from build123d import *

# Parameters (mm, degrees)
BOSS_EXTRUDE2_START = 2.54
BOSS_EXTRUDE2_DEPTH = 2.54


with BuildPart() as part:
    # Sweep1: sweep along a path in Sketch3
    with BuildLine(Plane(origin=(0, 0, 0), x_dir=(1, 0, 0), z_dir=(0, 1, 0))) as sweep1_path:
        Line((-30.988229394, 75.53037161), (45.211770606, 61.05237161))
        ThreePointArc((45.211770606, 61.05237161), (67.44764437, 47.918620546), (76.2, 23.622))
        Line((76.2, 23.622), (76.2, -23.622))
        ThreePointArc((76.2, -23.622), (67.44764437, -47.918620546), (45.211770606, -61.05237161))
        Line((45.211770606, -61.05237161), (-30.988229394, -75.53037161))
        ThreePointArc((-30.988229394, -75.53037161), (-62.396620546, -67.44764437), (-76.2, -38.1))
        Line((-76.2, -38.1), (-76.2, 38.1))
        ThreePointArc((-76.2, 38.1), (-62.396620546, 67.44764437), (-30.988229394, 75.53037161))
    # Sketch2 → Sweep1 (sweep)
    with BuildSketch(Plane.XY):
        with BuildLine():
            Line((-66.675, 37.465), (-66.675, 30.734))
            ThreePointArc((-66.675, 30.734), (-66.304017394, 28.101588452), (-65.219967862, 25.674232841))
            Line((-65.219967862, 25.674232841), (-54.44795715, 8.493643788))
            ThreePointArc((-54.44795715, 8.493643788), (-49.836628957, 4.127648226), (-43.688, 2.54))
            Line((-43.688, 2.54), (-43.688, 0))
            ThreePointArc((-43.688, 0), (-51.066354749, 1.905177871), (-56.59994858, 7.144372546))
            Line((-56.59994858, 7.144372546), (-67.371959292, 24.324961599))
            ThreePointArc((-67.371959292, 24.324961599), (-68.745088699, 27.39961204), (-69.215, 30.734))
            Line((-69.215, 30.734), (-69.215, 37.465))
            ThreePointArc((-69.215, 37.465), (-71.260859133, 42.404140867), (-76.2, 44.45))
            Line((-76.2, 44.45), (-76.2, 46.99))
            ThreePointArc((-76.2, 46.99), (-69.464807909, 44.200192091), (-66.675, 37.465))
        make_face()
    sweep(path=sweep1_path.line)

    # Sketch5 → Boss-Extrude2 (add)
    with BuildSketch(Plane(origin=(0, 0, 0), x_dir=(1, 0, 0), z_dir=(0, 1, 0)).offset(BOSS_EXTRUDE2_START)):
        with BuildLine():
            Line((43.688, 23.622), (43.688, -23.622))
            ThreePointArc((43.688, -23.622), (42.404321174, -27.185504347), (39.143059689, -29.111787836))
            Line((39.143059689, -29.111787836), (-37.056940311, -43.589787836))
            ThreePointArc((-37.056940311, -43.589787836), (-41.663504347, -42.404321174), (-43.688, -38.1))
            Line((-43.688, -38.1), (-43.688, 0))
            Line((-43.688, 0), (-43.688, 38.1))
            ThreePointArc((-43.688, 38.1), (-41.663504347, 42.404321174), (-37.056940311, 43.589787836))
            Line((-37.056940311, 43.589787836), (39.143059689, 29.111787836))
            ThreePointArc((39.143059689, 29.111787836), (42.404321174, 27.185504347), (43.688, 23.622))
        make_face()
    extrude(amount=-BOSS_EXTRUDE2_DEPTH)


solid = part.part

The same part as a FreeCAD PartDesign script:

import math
import FreeCAD as App
import Part
import Sketcher
Q = App.Units.Quantity

doc = App.newDocument("Part")
body = doc.addObject("PartDesign::Body", "Body")

# Sketch on XY plane
sketch1 = body.newObject("Sketcher::SketchObject", "Sketch")
sketch1.AttachmentSupport = (doc.getObject("XY_Plane"), [""])
sketch1.MapMode = "FlatFace"
sketch1.addGeometry(Part.LineSegment(App.Vector(-66.7, 30.7, 0), App.Vector(-66.7, 37.5, 0)), False)
sketch1.addGeometry(Part.ArcOfCircle(Part.Circle(App.Vector(-76.2, 37.5, 0), App.Vector(0, 0, 1), 9.5), math.radians(0), math.radians(90)), False)
sketch1.addGeometry(Part.LineSegment(App.Vector(-76.2, 47, 0), App.Vector(-76.2, 44.5, 0)), False)
sketch1.addGeometry(Part.ArcOfCircle(Part.Circle(App.Vector(-76.2, 37.5, 0), App.Vector(0, 0, 1), 7), math.radians(0), math.radians(90)), False)
sketch1.addGeometry(Part.LineSegment(App.Vector(-69.2, 37.5, 0), App.Vector(-69.2, 30.7, 0)), False)
sketch1.addGeometry(Part.ArcOfCircle(Part.Circle(App.Vector(-57.2, 30.7, 0), App.Vector(0, 0, 1), 12.1), math.radians(180), math.radians(212)), False)
sketch1.addGeometry(Part.LineSegment(App.Vector(-67.4, 24.3, 0), App.Vector(-56.6, 7.1, 0)), False)
sketch1.addGeometry(Part.ArcOfCircle(Part.Circle(App.Vector(-43.7, 15.2, 0), App.Vector(0, 0, 1), 15.2), math.radians(-148), math.radians(-90)), False)
sketch1.addGeometry(Part.LineSegment(App.Vector(-43.7, 0, 0), App.Vector(-43.7, 2.5, 0)), False)
sketch1.addGeometry(Part.ArcOfCircle(Part.Circle(App.Vector(-43.7, 15.2, 0), App.Vector(0, 0, 1), 12.7), math.radians(-148), math.radians(-90)), False)
sketch1.addGeometry(Part.LineSegment(App.Vector(-54.4, 8.5, 0), App.Vector(-65.2, 25.7, 0)), False)
sketch1.addGeometry(Part.ArcOfCircle(Part.Circle(App.Vector(-57.2, 30.7, 0), App.Vector(0, 0, 1), 9.5), math.radians(180), math.radians(212)), False)
sketch1.addConstraint(Sketcher.Constraint("Tangent", 0, 2, 1, 1))
sketch1.addConstraint(Sketcher.Constraint("Coincident", 1, 2, 2, 1))
sketch1.addConstraint(Sketcher.Constraint("Coincident", 2, 2, 3, 2))
sketch1.addConstraint(Sketcher.Constraint("Tangent", 3, 1, 4, 1))
sketch1.addConstraint(Sketcher.Constraint("Tangent", 4, 2, 5, 1))
sketch1.addConstraint(Sketcher.Constraint("Tangent", 5, 2, 6, 1))
sketch1.addConstraint(Sketcher.Constraint("Tangent", 6, 2, 7, 1))
sketch1.addConstraint(Sketcher.Constraint("Coincident", 7, 2, 8, 1))
sketch1.addConstraint(Sketcher.Constraint("Coincident", 8, 2, 9, 2))
sketch1.addConstraint(Sketcher.Constraint("Tangent", 9, 1, 10, 1))
sketch1.addConstraint(Sketcher.Constraint("Tangent", 10, 2, 11, 2))
sketch1.addConstraint(Sketcher.Constraint("Tangent", 11, 1, 0, 1))
sketch1.addConstraint(Sketcher.Constraint("Vertical", 0))
sketch1.addConstraint(Sketcher.Constraint("Vertical", 2))
sketch1.addConstraint(Sketcher.Constraint("Vertical", 4))
sketch1.addConstraint(Sketcher.Constraint("Vertical", 8))
sketch1.addConstraint(Sketcher.Constraint("Coincident", 3, 3, 1, 3))
sketch1.addConstraint(Sketcher.Constraint("Coincident", 9, 3, 7, 3))
sketch1.addConstraint(Sketcher.Constraint("Coincident", 11, 3, 5, 3))
sketch1.addConstraint(Sketcher.Constraint("Equal", 1, 11))
sketch1.addConstraint(Sketcher.Constraint("PointOnObject", 7, 2, -1))
sketch1.addConstraint(Sketcher.Constraint("Parallel", 6, 10))
sketch1.addConstraint(Sketcher.Constraint("Vertical", 3, 3, 1, 2))
sketch1.addConstraint(Sketcher.Constraint("Vertical", 9, 3, 7, 2))
sketch1.addConstraint(Sketcher.Constraint("Radius", 7, Q("0.6 in")))
sketch1.addConstraint(Sketcher.Constraint("Radius", 9, Q("0.5 in")))
sketch1.addConstraint(Sketcher.Constraint("DistanceX", 1, 3, -1, 1, Q("3 in")))
sketch1.addConstraint(Sketcher.Constraint("Radius", 1, Q("0.375 in")))
sketch1.addConstraint(Sketcher.Constraint("DistanceY", 0, 1, 0, 2, Q("0.265 in")))
sketch1.addConstraint(Sketcher.Constraint("DistanceY", -1, 1, 5, 3, Q("1.21 in")))
sketch1.addConstraint(Sketcher.Constraint("DistanceX", 7, 3, -1, 1, Q("1.72 in")))

# Sketch on XZ plane
sketch2 = body.newObject("Sketcher::SketchObject", "Sketch001")
sketch2.AttachmentSupport = (doc.getObject("XZ_Plane"), [""])
sketch2.MapMode = "FlatFace"
sketch2.addGeometry(Part.LineSegment(App.Vector(-31, -76, 0), App.Vector(45, -61, 0)), False)
sketch2.addGeometry(Part.ArcOfCircle(Part.Circle(App.Vector(38, -24, 0), App.Vector(0, 0, 1), 38), math.radians(-79), math.radians(0)), False)
sketch2.addGeometry(Part.LineSegment(App.Vector(76, -24, 0), App.Vector(76, 24, 0)), False)
sketch2.addGeometry(Part.ArcOfCircle(Part.Circle(App.Vector(38, 24, 0), App.Vector(0, 0, 1), 38), math.radians(0), math.radians(79)), False)
sketch2.addGeometry(Part.LineSegment(App.Vector(45, 61, 0), App.Vector(-31, 76, 0)), False)
sketch2.addGeometry(Part.ArcOfCircle(Part.Circle(App.Vector(-38, 38, 0), App.Vector(0, 0, 1), 38), math.radians(79), math.radians(180)), False)
sketch2.addGeometry(Part.LineSegment(App.Vector(-76, 38, 0), App.Vector(-76, -38, 0)), False)
sketch2.addGeometry(Part.ArcOfCircle(Part.Circle(App.Vector(-38, -38, 0), App.Vector(0, 0, 1), 38), math.radians(180), math.radians(281)), False)
sketch2.addConstraint(Sketcher.Constraint("Tangent", 0, 2, 1, 1))
sketch2.addConstraint(Sketcher.Constraint("Tangent", 1, 2, 2, 1))
sketch2.addConstraint(Sketcher.Constraint("Tangent", 2, 2, 3, 1))
sketch2.addConstraint(Sketcher.Constraint("Tangent", 3, 2, 4, 1))
sketch2.addConstraint(Sketcher.Constraint("Tangent", 4, 2, 5, 1))
sketch2.addConstraint(Sketcher.Constraint("Tangent", 5, 2, 6, 1))
sketch2.addConstraint(Sketcher.Constraint("Tangent", 6, 2, 7, 1))
sketch2.addConstraint(Sketcher.Constraint("Tangent", 7, 2, 0, 1))
sketch2.addConstraint(Sketcher.Constraint("Vertical", 2))
sketch2.addConstraint(Sketcher.Constraint("Vertical", 6))
sketch2.addConstraint(Sketcher.Constraint("Equal", 1, 3))
sketch2.addConstraint(Sketcher.Constraint("Equal", 3, 5))
sketch2.addConstraint(Sketcher.Constraint("Equal", 5, 7))
sketch2.addConstraint(Sketcher.Constraint("Symmetric", 0, 2, 3, 2, -1))
sketch2.addConstraint(Sketcher.Constraint("Radius", 1, Q("1.5 in")))
sketch2.addConstraint(Sketcher.Constraint("DistanceY", 6, 2, 6, 1, Q("3 in")))
sketch2.addConstraint(Sketcher.Constraint("DistanceX", -1, 1, 1, 2, Q("3 in")))
sketch2.addConstraint(Sketcher.Constraint("DistanceX", 5, 2, -1, 1, Q("3 in")))
sketch2.addConstraint(Sketcher.Constraint("DistanceY", 2, 1, 2, 2, Q("1.86 in")))
doc.recompute()

additivepipe = body.newObject("PartDesign::AdditivePipe", "AdditivePipe")
additivepipe.Profile = sketch1
additivepipe.Spine = (sketch2, ["Edge1", "Edge2", "Edge3", "Edge4", "Edge5", "Edge6", "Edge7", "Edge8"])

# Sketch on XZ plane
sketch3 = body.newObject("Sketcher::SketchObject", "Sketch002")
sketch3.AttachmentSupport = (doc.getObject("XZ_Plane"), [""])
sketch3.MapMode = "FlatFace"
sketch3.AttachmentOffset = App.Placement(App.Vector(0, 0, -0.1 * 25.4), App.Rotation())
sketch3.addGeometry(Part.LineSegment(App.Vector(44, 24, 0), App.Vector(44, -24, 0)), False)
sketch3.addGeometry(Part.ArcOfCircle(Part.Circle(App.Vector(38, -24, 0), App.Vector(0, 0, 1), 6), math.radians(-79), math.radians(0)), False)
sketch3.addGeometry(Part.LineSegment(App.Vector(39, -29, 0), App.Vector(-37, -44, 0)), False)
sketch3.addGeometry(Part.ArcOfCircle(Part.Circle(App.Vector(-38, -38, 0), App.Vector(0, 0, 1), 6), math.radians(180), math.radians(281)), False)
sketch3.addGeometry(Part.LineSegment(App.Vector(-44, -38, 0), App.Vector(-44, 38, 0)), False)
sketch3.addGeometry(Part.ArcOfCircle(Part.Circle(App.Vector(-38, 38, 0), App.Vector(0, 0, 1), 6), math.radians(79), math.radians(180)), False)
sketch3.addGeometry(Part.LineSegment(App.Vector(-37, 44, 0), App.Vector(39, 29, 0)), False)
sketch3.addGeometry(Part.ArcOfCircle(Part.Circle(App.Vector(38, 24, 0), App.Vector(0, 0, 1), 6), math.radians(0), math.radians(79)), False)
sketch3.addConstraint(Sketcher.Constraint("Tangent", 0, 2, 1, 2))
sketch3.addConstraint(Sketcher.Constraint("Tangent", 1, 1, 2, 1))
sketch3.addConstraint(Sketcher.Constraint("Tangent", 2, 2, 3, 2))
sketch3.addConstraint(Sketcher.Constraint("Tangent", 3, 1, 4, 1))
sketch3.addConstraint(Sketcher.Constraint("Tangent", 4, 2, 5, 2))
sketch3.addConstraint(Sketcher.Constraint("Tangent", 5, 1, 6, 1))
sketch3.addConstraint(Sketcher.Constraint("Tangent", 6, 2, 7, 2))
sketch3.addConstraint(Sketcher.Constraint("Tangent", 7, 1, 0, 1))
sketch3.addConstraint(Sketcher.Constraint("Vertical", 0))
sketch3.addConstraint(Sketcher.Constraint("Vertical", 4))
sketch3.addConstraint(Sketcher.Constraint("Equal", 1, 3))
sketch3.addConstraint(Sketcher.Constraint("Equal", 3, 5))
sketch3.addConstraint(Sketcher.Constraint("Equal", 5, 7))
sketch3.addConstraint(Sketcher.Constraint("Symmetric", 2, 2, 5, 1, -1))
sketch3.addConstraint(Sketcher.Constraint("DistanceY", 4, 1, 4, 2, Q("3 in")))
sketch3.addConstraint(Sketcher.Constraint("Radius", 1, Q("0.22 in")))
sketch3.addConstraint(Sketcher.Constraint("DistanceX", 3, 3, 1, 3, Q("3 in")))
sketch3.addConstraint(Sketcher.Constraint("DistanceY", 0, 2, 0, 1, Q("1.86 in")))
sketch3.addConstraint(Sketcher.Constraint("DistanceX", -1, 1, 1, 3, Q("1.5 in")))
pad1 = body.newObject("PartDesign::Pad", "Pad")
pad1.Profile = sketch3
pad1.Length = Q("0.1 in")

doc.recompute()
